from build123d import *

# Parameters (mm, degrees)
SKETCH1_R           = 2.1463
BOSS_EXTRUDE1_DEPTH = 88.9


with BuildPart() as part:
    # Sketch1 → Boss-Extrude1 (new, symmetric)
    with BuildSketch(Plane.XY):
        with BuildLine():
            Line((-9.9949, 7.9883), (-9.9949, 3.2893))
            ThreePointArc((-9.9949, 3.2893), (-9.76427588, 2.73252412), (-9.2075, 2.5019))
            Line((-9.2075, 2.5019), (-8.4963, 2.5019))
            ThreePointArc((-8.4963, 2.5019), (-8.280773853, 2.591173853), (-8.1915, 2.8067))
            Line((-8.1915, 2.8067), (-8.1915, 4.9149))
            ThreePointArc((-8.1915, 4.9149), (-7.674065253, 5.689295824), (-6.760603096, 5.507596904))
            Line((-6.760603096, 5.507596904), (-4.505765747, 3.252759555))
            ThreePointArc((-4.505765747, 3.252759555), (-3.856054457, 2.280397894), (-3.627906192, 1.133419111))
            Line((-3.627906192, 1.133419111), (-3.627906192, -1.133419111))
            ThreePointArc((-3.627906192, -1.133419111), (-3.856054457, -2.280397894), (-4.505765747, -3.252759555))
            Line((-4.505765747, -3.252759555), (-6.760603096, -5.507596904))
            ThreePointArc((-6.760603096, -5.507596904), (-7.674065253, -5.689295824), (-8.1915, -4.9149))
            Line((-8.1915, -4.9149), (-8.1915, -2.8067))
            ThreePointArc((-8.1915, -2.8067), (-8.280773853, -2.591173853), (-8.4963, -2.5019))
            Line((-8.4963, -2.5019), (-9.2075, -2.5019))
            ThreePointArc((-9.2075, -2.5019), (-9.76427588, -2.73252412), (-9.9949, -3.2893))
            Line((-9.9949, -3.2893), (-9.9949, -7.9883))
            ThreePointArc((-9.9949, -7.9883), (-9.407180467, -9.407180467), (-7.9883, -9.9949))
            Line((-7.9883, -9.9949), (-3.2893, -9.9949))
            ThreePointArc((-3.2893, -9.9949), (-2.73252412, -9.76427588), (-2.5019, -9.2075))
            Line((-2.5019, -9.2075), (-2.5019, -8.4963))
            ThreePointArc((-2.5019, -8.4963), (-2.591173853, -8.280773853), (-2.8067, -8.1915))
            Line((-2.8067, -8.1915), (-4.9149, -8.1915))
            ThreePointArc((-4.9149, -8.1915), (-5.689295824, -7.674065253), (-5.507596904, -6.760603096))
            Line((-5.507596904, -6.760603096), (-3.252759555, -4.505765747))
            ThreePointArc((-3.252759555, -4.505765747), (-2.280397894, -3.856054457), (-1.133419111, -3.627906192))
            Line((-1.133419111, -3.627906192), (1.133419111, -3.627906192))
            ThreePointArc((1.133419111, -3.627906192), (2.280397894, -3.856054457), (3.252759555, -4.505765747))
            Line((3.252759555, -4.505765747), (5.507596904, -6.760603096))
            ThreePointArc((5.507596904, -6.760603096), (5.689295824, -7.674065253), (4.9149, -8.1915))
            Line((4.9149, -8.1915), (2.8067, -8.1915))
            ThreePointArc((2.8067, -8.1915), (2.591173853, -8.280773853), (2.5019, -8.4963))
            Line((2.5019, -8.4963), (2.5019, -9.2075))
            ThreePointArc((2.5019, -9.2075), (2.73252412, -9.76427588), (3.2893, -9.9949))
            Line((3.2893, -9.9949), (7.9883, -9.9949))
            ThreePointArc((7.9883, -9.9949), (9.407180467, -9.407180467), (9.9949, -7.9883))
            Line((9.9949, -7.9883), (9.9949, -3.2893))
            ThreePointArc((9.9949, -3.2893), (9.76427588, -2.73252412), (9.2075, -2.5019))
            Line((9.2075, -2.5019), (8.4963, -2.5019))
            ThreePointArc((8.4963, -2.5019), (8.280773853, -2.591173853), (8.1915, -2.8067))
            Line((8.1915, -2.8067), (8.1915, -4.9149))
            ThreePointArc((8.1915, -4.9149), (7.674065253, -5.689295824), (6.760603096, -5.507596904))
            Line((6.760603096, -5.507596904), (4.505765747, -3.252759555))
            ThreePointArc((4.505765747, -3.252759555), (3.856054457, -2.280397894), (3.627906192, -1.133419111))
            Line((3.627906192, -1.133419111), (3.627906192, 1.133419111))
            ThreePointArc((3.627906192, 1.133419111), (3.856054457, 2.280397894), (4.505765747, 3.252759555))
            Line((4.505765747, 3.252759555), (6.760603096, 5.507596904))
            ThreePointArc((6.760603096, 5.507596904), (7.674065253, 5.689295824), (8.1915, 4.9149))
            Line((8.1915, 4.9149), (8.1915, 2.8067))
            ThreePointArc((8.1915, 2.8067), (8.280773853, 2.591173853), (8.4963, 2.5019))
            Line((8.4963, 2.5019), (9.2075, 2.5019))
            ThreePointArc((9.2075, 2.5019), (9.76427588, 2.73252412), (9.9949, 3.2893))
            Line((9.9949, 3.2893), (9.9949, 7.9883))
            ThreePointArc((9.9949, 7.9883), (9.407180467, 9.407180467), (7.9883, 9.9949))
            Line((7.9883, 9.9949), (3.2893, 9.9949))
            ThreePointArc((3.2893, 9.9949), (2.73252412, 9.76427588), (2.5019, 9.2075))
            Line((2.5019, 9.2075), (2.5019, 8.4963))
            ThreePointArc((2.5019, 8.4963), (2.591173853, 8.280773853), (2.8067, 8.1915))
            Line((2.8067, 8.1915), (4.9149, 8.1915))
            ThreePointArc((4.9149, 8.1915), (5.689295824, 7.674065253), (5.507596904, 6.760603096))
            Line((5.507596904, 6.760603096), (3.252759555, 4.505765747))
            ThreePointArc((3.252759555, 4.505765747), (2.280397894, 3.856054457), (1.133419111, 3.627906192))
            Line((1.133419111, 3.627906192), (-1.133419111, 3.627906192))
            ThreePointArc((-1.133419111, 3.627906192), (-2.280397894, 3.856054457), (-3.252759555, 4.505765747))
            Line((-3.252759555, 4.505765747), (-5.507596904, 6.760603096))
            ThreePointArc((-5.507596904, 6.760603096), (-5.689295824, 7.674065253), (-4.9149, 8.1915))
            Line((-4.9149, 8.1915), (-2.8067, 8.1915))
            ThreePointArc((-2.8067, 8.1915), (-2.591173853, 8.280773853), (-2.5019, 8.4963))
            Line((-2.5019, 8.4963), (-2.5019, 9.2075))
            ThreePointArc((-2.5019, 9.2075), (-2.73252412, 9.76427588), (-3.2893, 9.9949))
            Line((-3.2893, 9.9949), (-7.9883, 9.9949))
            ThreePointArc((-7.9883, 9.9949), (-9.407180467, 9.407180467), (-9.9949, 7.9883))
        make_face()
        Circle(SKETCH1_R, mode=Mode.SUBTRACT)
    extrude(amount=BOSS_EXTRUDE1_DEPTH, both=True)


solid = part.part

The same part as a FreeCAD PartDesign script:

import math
import FreeCAD as App
import Part
import Sketcher
from FreeCAD import Vector
Q = App.Units.Quantity

doc = App.newDocument("Part")
body = doc.addObject("PartDesign::Body", "Body")

sketch1 = body.newObject("Sketcher::SketchObject", "Sketch")
sketch1.AttachmentSupport = (doc.getObject("XY_Plane"), [""])
sketch1.MapMode = "FlatFace"
sketch1.addGeometry(Part.LineSegment(Vector(-9.99, 7.99, 0), Vector(-9.99, 3.29, 0)), False)
sketch1.addGeometry(Part.ArcOfCircle(Part.Circle(Vector(-9.21, 3.29, 0), Vector(0, 0, 1), 0.79), math.radians(180), math.radians(270)), False)
sketch1.addGeometry(Part.LineSegment(Vector(-9.21, 2.5, 0), Vector(-8.5, 2.5, 0)), False)
sketch1.addGeometry(Part.ArcOfCircle(Part.Circle(Vector(-8.5, 2.81, 0), Vector(0, 0, 1), 0.3), math.radians(-90), math.radians(0)), False)
sketch1.addGeometry(Part.LineSegment(Vector(-8.19, 2.81, 0), Vector(-8.19, 4.91, 0)), False)
sketch1.addGeometry(Part.ArcOfCircle(Part.Circle(Vector(-7.35, 4.91, 0), Vector(0, 0, 1), 0.84), math.radians(45), math.radians(180)), False)
sketch1.addGeometry(Part.LineSegment(Vector(-6.76, 5.51, 0), Vector(-4.51, 3.25, 0)), False)
sketch1.addGeometry(Part.ArcOfCircle(Part.Circle(Vector(-6.63, 1.13, 0), Vector(0, 0, 1), 3), math.radians(0), math.radians(45)), False)
sketch1.addGeometry(Part.LineSegment(Vector(-3.63, 1.13, 0), Vector(-3.63, -1.13, 0)), False)
sketch1.addGeometry(Part.ArcOfCircle(Part.Circle(Vector(-6.63, -1.13, 0), Vector(0, 0, 1), 3), math.radians(-45), math.radians(0)), False)
sketch1.addGeometry(Part.LineSegment(Vector(-4.51, -3.25, 0), Vector(-6.76, -5.51, 0)), False)
sketch1.addGeometry(Part.ArcOfCircle(Part.Circle(Vector(-7.35, -4.91, 0), Vector(0, 0, 1), 0.84), math.radians(180), math.radians(315)), False)
sketch1.addGeometry(Part.LineSegment(Vector(-8.19, -4.91, 0), Vector(-8.19, -2.81, 0)), False)
sketch1.addGeometry(Part.ArcOfCircle(Part.Circle(Vector(-8.5, -2.81, 0), Vector(0, 0, 1), 0.3), math.radians(0), math.radians(90)), False)
sketch1.addGeometry(Part.LineSegment(Vector(-8.5, -2.5, 0), Vector(-9.21, -2.5, 0)), False)
sketch1.addGeometry(Part.ArcOfCircle(Part.Circle(Vector(-9.21, -3.29, 0), Vector(0, 0, 1), 0.79), math.radians(90), math.radians(180)), False)
sketch1.addGeometry(Part.LineSegment(Vector(-9.99, -3.29, 0), Vector(-9.99, -7.99, 0)), False)
sketch1.addGeometry(Part.ArcOfCircle(Part.Circle(Vector(-7.99, -7.99, 0), Vector(0, 0, 1), 2.01), math.radians(180), math.radians(270)), False)
sketch1.addGeometry(Part.LineSegment(Vector(-7.99, -9.99, 0), Vector(-3.29, -9.99, 0)), False)
sketch1.addGeometry(Part.ArcOfCircle(Part.Circle(Vector(-3.29, -9.21, 0), Vector(0, 0, 1), 0.79), math.radians(-90), math.radians(0)), False)
sketch1.addGeometry(Part.LineSegment(Vector(-2.5, -9.21, 0), Vector(-2.5, -8.5, 0)), False)
sketch1.addGeometry(Part.ArcOfCircle(Part.Circle(Vector(-2.81, -8.5, 0), Vector(0, 0, 1), 0.3), math.radians(0), math.radians(90)), False)
sketch1.addGeometry(Part.LineSegment(Vector(-2.81, -8.19, 0), Vector(-4.91, -8.19, 0)), False)
sketch1.addGeometry(Part.ArcOfCircle(Part.Circle(Vector(-4.91, -7.35, 0), Vector(0, 0, 1), 0.84), math.radians(135), math.radians(270)), False)
sketch1.addGeometry(Part.LineSegment(Vector(-5.51, -6.76, 0), Vector(-3.25, -4.51, 0)), False)
sketch1.addGeometry(Part.ArcOfCircle(Part.Circle(Vector(-1.13, -6.63, 0), Vector(0, 0, 1), 3), math.radians(90), math.radians(135)), False)
sketch1.addGeometry(Part.LineSegment(Vector(-1.13, -3.63, 0), Vector(1.13, -3.63, 0)), False)
sketch1.addGeometry(Part.ArcOfCircle(Part.Circle(Vector(1.13, -6.63, 0), Vector(0, 0, 1), 3), math.radians(45), math.radians(90)), False)
sketch1.addGeometry(Part.LineSegment(Vector(3.25, -4.51, 0), Vector(5.51, -6.76, 0)), False)
sketch1.addGeometry(Part.ArcOfCircle(Part.Circle(Vector(4.91, -7.35, 0), Vector(0, 0, 1), 0.84), math.radians(-90), math.radians(45)), False)
sketch1.addGeometry(Part.LineSegment(Vector(4.91, -8.19, 0), Vector(2.81, -8.19, 0)), False)
sketch1.addGeometry(Part.ArcOfCircle(Part.Circle(Vector(2.81, -8.5, 0), Vector(0, 0, 1), 0.3), math.radians(90), math.radians(180)), False)
sketch1.addGeometry(Part.LineSegment(Vector(2.5, -8.5, 0), Vector(2.5, -9.21, 0)), False)
sketch1.addGeometry(Part.ArcOfCircle(Part.Circle(Vector(3.29, -9.21, 0), Vector(0, 0, 1), 0.79), math.radians(180), math.radians(270)), False)
sketch1.addGeometry(Part.LineSegment(Vector(3.29, -9.99, 0), Vector(7.99, -9.99, 0)), False)
sketch1.addGeometry(Part.ArcOfCircle(Part.Circle(Vector(7.99, -7.99, 0), Vector(0, 0, 1), 2.01), math.radians(-90), math.radians(0)), False)
sketch1.addGeometry(Part.LineSegment(Vector(9.99, -7.99, 0), Vector(9.99, -3.29, 0)), False)
sketch1.addGeometry(Part.ArcOfCircle(Part.Circle(Vector(9.21, -3.29, 0), Vector(0, 0, 1), 0.79), math.radians(0), math.radians(90)), False)
sketch1.addGeometry(Part.LineSegment(Vector(9.21, -2.5, 0), Vector(8.5, -2.5, 0)), False)
sketch1.addGeometry(Part.ArcOfCircle(Part.Circle(Vector(8.5, -2.81, 0), Vector(0, 0, 1), 0.3), math.radians(90), math.radians(180)), False)
sketch1.addGeometry(Part.LineSegment(Vector(8.19, -2.81, 0), Vector(8.19, -4.91, 0)), False)
sketch1.addGeometry(Part.ArcOfCircle(Part.Circle(Vector(7.35, -4.91, 0), Vector(0, 0, 1), 0.84), math.radians(-135), math.radians(0)), False)
sketch1.addGeometry(Part.LineSegment(Vector(6.76, -5.51, 0), Vector(4.51, -3.25, 0)), False)
sketch1.addGeometry(Part.ArcOfCircle(Part.Circle(Vector(6.63, -1.13, 0), Vector(0, 0, 1), 3), math.radians(180), math.radians(225)), False)
sketch1.addGeometry(Part.LineSegment(Vector(3.63, -1.13, 0), Vector(3.63, 1.13, 0)), False)
sketch1.addGeometry(Part.ArcOfCircle(Part.Circle(Vector(6.63, 1.13, 0), Vector(0, 0, 1), 3), math.radians(135), math.radians(180)), False)
sketch1.addGeometry(Part.LineSegment(Vector(4.51, 3.25, 0), Vector(6.76, 5.51, 0)), False)
sketch1.addGeometry(Part.ArcOfCircle(Part.Circle(Vector(7.35, 4.91, 0), Vector(0, 0, 1), 0.84), math.radians(0), math.radians(135)), False)
sketch1.addGeometry(Part.LineSegment(Vector(8.19, 4.91, 0), Vector(8.19, 2.81, 0)), False)
sketch1.addGeometry(Part.ArcOfCircle(Part.Circle(Vector(8.5, 2.81, 0), Vector(0, 0, 1), 0.3), math.radians(180), math.radians(270)), False)
sketch1.addGeometry(Part.LineSegment(Vector(8.5, 2.5, 0), Vector(9.21, 2.5, 0)), False)
sketch1.addGeometry(Part.ArcOfCircle(Part.Circle(Vector(9.21, 3.29, 0), Vector(0, 0, 1), 0.79), math.radians(-90), math.radians(0)), False)
sketch1.addGeometry(Part.LineSegment(Vector(9.99, 3.29, 0), Vector(9.99, 7.99, 0)), False)
sketch1.addGeometry(Part.ArcOfCircle(Part.Circle(Vector(7.99, 7.99, 0), Vector(0, 0, 1), 2.01), math.radians(0), math.radians(90)), False)
sketch1.addGeometry(Part.LineSegment(Vector(7.99, 9.99, 0), Vector(3.29, 9.99, 0)), False)
sketch1.addGeometry(Part.ArcOfCircle(Part.Circle(Vector(3.29, 9.21, 0), Vector(0, 0, 1), 0.79), math.radians(90), math.radians(180)), False)
sketch1.addGeometry(Part.LineSegment(Vector(2.5, 9.21, 0), Vector(2.5, 8.5, 0)), False)
sketch1.addGeometry(Part.ArcOfCircle(Part.Circle(Vector(2.81, 8.5, 0), Vector(0, 0, 1), 0.3), math.radians(180), math.radians(270)), False)
sketch1.addGeometry(Part.LineSegment(Vector(2.81, 8.19, 0), Vector(4.91, 8.19, 0)), False)
sketch1.addGeometry(Part.ArcOfCircle(Part.Circle(Vector(4.91, 7.35, 0), Vector(0, 0, 1), 0.84), math.radians(-45), math.radians(90)), False)
sketch1.addGeometry(Part.LineSegment(Vector(5.51, 6.76, 0), Vector(3.25, 4.51, 0)), False)
sketch1.addGeometry(Part.ArcOfCircle(Part.Circle(Vector(1.13, 6.63, 0), Vector(0, 0, 1), 3), math.radians(-90), math.radians(-45)), False)
sketch1.addGeometry(Part.LineSegment(Vector(1.13, 3.63, 0), Vector(-1.13, 3.63, 0)), False)
sketch1.addGeometry(Part.ArcOfCircle(Part.Circle(Vector(-1.13, 6.63, 0), Vector(0, 0, 1), 3), math.radians(-135), math.radians(-90)), False)
sketch1.addGeometry(Part.LineSegment(Vector(-3.25, 4.51, 0), Vector(-5.51, 6.76, 0)), False)
sketch1.addGeometry(Part.ArcOfCircle(Part.Circle(Vector(-4.91, 7.35, 0), Vector(0, 0, 1), 0.84), math.radians(90), math.radians(225)), False)
sketch1.addGeometry(Part.LineSegment(Vector(-4.91, 8.19, 0), Vector(-2.81, 8.19, 0)), False)
sketch1.addGeometry(Part.ArcOfCircle(Part.Circle(Vector(-2.81, 8.5, 0), Vector(0, 0, 1), 0.3), math.radians(-90), math.radians(0)), False)
sketch1.addGeometry(Part.LineSegment(Vector(-2.5, 8.5, 0), Vector(-2.5, 9.21, 0)), False)
sketch1.addGeometry(Part.ArcOfCircle(Part.Circle(Vector(-3.29, 9.21, 0), Vector(0, 0, 1), 0.79), math.radians(0), math.radians(90)), False)
sketch1.addGeometry(Part.LineSegment(Vector(-3.29, 9.99, 0), Vector(-7.99, 9.99, 0)), False)
sketch1.addGeometry(Part.ArcOfCircle(Part.Circle(Vector(-7.99, 7.99, 0), Vector(0, 0, 1), 2.01), math.radians(90), math.radians(180)), False)
sketch1.addGeometry(Part.Circle(Vector(0, 0, 0), Vector(0, 0, 1), 2.15), False)
sketch1.addConstraint(Sketcher.Constraint("Tangent", 0, 2, 1, 1))
sketch1.addConstraint(Sketcher.Constraint("Tangent", 1, 2, 2, 1))
sketch1.addConstraint(Sketcher.Constraint("Tangent", 2, 2, 3, 1))
sketch1.addConstraint(Sketcher.Constraint("Tangent", 3, 2, 4, 1))
sketch1.addConstraint(Sketcher.Constraint("Tangent", 4, 2, 5, 2))
sketch1.addConstraint(Sketcher.Constraint("Tangent", 5, 1, 6, 1))
sketch1.addConstraint(Sketcher.Constraint("Tangent", 6, 2, 7, 2))
sketch1.addConstraint(Sketcher.Constraint("Tangent", 7, 1, 8, 1))
sketch1.addConstraint(Sketcher.Constraint("Tangent", 8, 2, 9, 2))
sketch1.addConstraint(Sketcher.Constraint("Tangent", 9, 1, 10, 1))
sketch1.addConstraint(Sketcher.Constraint("Tangent", 10, 2, 11, 2))
sketch1.addConstraint(Sketcher.Constraint("Tangent", 11, 1, 12, 1))
sketch1.addConstraint(Sketcher.Constraint("Tangent", 12, 2, 13, 1))
sketch1.addConstraint(Sketcher.Constraint("Tangent", 13, 2, 14, 1))
sketch1.addConstraint(Sketcher.Constraint("Tangent", 14, 2, 15, 1))
sketch1.addConstraint(Sketcher.Constraint("Tangent", 15, 2, 16, 1))
sketch1.addConstraint(Sketcher.Constraint("Tangent", 16, 2, 17, 1))
sketch1.addConstraint(Sketcher.Constraint("Tangent", 17, 2, 18, 1))
sketch1.addConstraint(Sketcher.Constraint("Tangent", 18, 2, 19, 1))
sketch1.addConstraint(Sketcher.Constraint("Tangent", 19, 2, 20, 1))
sketch1.addConstraint(Sketcher.Constraint("Tangent", 20, 2, 21, 1))
sketch1.addConstraint(Sketcher.Constraint("Tangent", 21, 2, 22, 1))
sketch1.addConstraint(Sketcher.Constraint("Tangent", 22, 2, 23, 2))
sketch1.addConstraint(Sketcher.Constraint("Tangent", 23, 1, 24, 1))
sketch1.addConstraint(Sketcher.Constraint("Tangent", 24, 2, 25, 2))
sketch1.addConstraint(Sketcher.Constraint("Tangent", 25, 1, 26, 1))
sketch1.addConstraint(Sketcher.Constraint("Tangent", 26, 2, 27, 2))
sketch1.addConstraint(Sketcher.Constraint("Tangent", 27, 1, 28, 1))
sketch1.addConstraint(Sketcher.Constraint("Tangent", 28, 2, 29, 2))
sketch1.addConstraint(Sketcher.Constraint("Tangent", 29, 1, 30, 1))
sketch1.addConstraint(Sketcher.Constraint("Tangent", 30, 2, 31, 1))
sketch1.addConstraint(Sketcher.Constraint("Tangent", 31, 2, 32, 1))
sketch1.addConstraint(Sketcher.Constraint("Tangent", 32, 2, 33, 1))
sketch1.addConstraint(Sketcher.Constraint("Tangent", 33, 2, 34, 1))
sketch1.addConstraint(Sketcher.Constraint("Tangent", 34, 2, 35, 1))
sketch1.addConstraint(Sketcher.Constraint("Tangent", 35, 2, 36, 1))
sketch1.addConstraint(Sketcher.Constraint("Tangent", 36, 2, 37, 1))
sketch1.addConstraint(Sketcher.Constraint("Tangent", 37, 2, 38, 1))
sketch1.addConstraint(Sketcher.Constraint("Tangent", 38, 2, 39, 1))
sketch1.addConstraint(Sketcher.Constraint("Tangent", 39, 2, 40, 1))
sketch1.addConstraint(Sketcher.Constraint("Tangent", 40, 2, 41, 2))
sketch1.addConstraint(Sketcher.Constraint("Tangent", 41, 1, 42, 1))
sketch1.addConstraint(Sketcher.Constraint("Tangent", 42, 2, 43, 2))
sketch1.addConstraint(Sketcher.Constraint("Tangent", 43, 1, 44, 1))
sketch1.addConstraint(Sketcher.Constraint("Tangent", 44, 2, 45, 2))
sketch1.addConstraint(Sketcher.Constraint("Tangent", 45, 1, 46, 1))
sketch1.addConstraint(Sketcher.Constraint("Tangent", 46, 2, 47, 2))
sketch1.addConstraint(Sketcher.Constraint("Tangent", 47, 1, 48, 1))
sketch1.addConstraint(Sketcher.Constraint("Tangent", 48, 2, 49, 1))
sketch1.addConstraint(Sketcher.Constraint("Tangent", 49, 2, 50, 1))
sketch1.addConstraint(Sketcher.Constraint("Tangent", 50, 2, 51, 1))
sketch1.addConstraint(Sketcher.Constraint("Tangent", 51, 2, 52, 1))
sketch1.addConstraint(Sketcher.Constraint("Tangent", 52, 2, 53, 1))
sketch1.addConstraint(Sketcher.Constraint("Tangent", 53, 2, 54, 1))
sketch1.addConstraint(Sketcher.Constraint("Tangent", 54, 2, 55, 1))
sketch1.addConstraint(Sketcher.Constraint("Tangent", 55, 2, 56, 1))
sketch1.addConstraint(Sketcher.Constraint("Tangent", 56, 2, 57, 1))
sketch1.addConstraint(Sketcher.Constraint("Tangent", 57, 2, 58, 1))
sketch1.addConstraint(Sketcher.Constraint("Tangent", 58, 2, 59, 2))
sketch1.addConstraint(Sketcher.Constraint("Tangent", 59, 1, 60, 1))
sketch1.addConstraint(Sketcher.Constraint("Tangent", 60, 2, 61, 2))
sketch1.addConstraint(Sketcher.Constraint("Tangent", 61, 1, 62, 1))
sketch1.addConstraint(Sketcher.Constraint("Tangent", 62, 2, 63, 2))
sketch1.addConstraint(Sketcher.Constraint("Tangent", 63, 1, 64, 1))
sketch1.addConstraint(Sketcher.Constraint("Tangent", 64, 2, 65, 2))
sketch1.addConstraint(Sketcher.Constraint("Tangent", 65, 1, 66, 1))
sketch1.addConstraint(Sketcher.Constraint("Tangent", 66, 2, 67, 1))
sketch1.addConstraint(Sketcher.Constraint("Tangent", 67, 2, 68, 1))
sketch1.addConstraint(Sketcher.Constraint("Tangent", 68, 2, 69, 1))
sketch1.addConstraint(Sketcher.Constraint("Tangent", 69, 2, 70, 1))
sketch1.addConstraint(Sketcher.Constraint("Tangent", 70, 2, 71, 1))
sketch1.addConstraint(Sketcher.Constraint("Tangent", 71, 2, 0, 1))
sketch1.addConstraint(Sketcher.Constraint("Vertical", 0))
sketch1.addConstraint(Sketcher.Constraint("Horizontal", 2))
sketch1.addConstraint(Sketcher.Constraint("Vertical", 4))
sketch1.addConstraint(Sketcher.Constraint("Vertical", 8))
sketch1.addConstraint(Sketcher.Constraint("Vertical", 12))
sketch1.addConstraint(Sketcher.Constraint("Horizontal", 14))
sketch1.addConstraint(Sketcher.Constraint("Vertical", 16))
sketch1.addConstraint(Sketcher.Constraint("Horizontal", 18))
sketch1.addConstraint(Sketcher.Constraint("Vertical", 20))
sketch1.addConstraint(Sketcher.Constraint("Horizontal", 22))
sketch1.addConstraint(Sketcher.Constraint("Horizontal", 26))
sketch1.addConstraint(Sketcher.Constraint("Horizontal", 30))
sketch1.addConstraint(Sketcher.Constraint("Vertical", 32))
sketch1.addConstraint(Sketcher.Constraint("Horizontal", 34))
sketch1.addConstraint(Sketcher.Constraint("Vertical", 36))
sketch1.addConstraint(Sketcher.Constraint("Horizontal", 38))
sketch1.addConstraint(Sketcher.Constraint("Vertical", 40))
sketch1.addConstraint(Sketcher.Constraint("Vertical", 44))
sketch1.addConstraint(Sketcher.Constraint("Vertical", 48))
sketch1.addConstraint(Sketcher.Constraint("Horizontal", 50))
sketch1.addConstraint(Sketcher.Constraint("Vertical", 52))
sketch1.addConstraint(Sketcher.Constraint("Horizontal", 54))
sketch1.addConstraint(Sketcher.Constraint("Vertical", 56))
sketch1.addConstraint(Sketcher.Constraint("Horizontal", 58))
sketch1.addConstraint(Sketcher.Constraint("Horizontal", 62))
sketch1.addConstraint(Sketcher.Constraint("Horizontal", 66))
sketch1.addConstraint(Sketcher.Constraint("Vertical", 68))
sketch1.addConstraint(Sketcher.Constraint("Horizontal", 70))
sketch1.addConstraint(Sketcher.Constraint("Coincident", 72, 3, -1, 1))
sketch1.addConstraint(Sketcher.Constraint("Equal", 7, 9))
sketch1.addConstraint(Sketcher.Constraint("Equal", 5, 11))
sketch1.addConstraint(Sketcher.Constraint("Equal", 3, 13))
sketch1.addConstraint(Sketcher.Constraint("Equal", 1, 15))
sketch1.addConstraint(Sketcher.Constraint("Equal", 15, 19))
sketch1.addConstraint(Sketcher.Constraint("Equal", 13, 21))
sketch1.addConstraint(Sketcher.Constraint("Equal", 11, 23))
sketch1.addConstraint(Sketcher.Constraint("Equal", 9, 25))
sketch1.addConstraint(Sketcher.Constraint("Equal", 25, 27))
sketch1.addConstraint(Sketcher.Constraint("Equal", 23, 29))
sketch1.addConstraint(Sketcher.Constraint("Equal", 21, 31))
sketch1.addConstraint(Sketcher.Constraint("Equal", 19, 33))
sketch1.addConstraint(Sketcher.Constraint("Equal", 17, 35))
sketch1.addConstraint(Sketcher.Constraint("Equal", 33, 37))
sketch1.addConstraint(Sketcher.Constraint("Equal", 31, 39))
sketch1.addConstraint(Sketcher.Constraint("Equal", 29, 41))
sketch1.addConstraint(Sketcher.Constraint("Equal", 27, 43))
sketch1.addConstraint(Sketcher.Constraint("Equal", 43, 45))
sketch1.addConstraint(Sketcher.Constraint("Equal", 41, 47))
sketch1.addConstraint(Sketcher.Constraint("Equal", 39, 49))
sketch1.addConstraint(Sketcher.Constraint("Equal", 37, 51))
sketch1.addConstraint(Sketcher.Constraint("Equal", 35, 53))
sketch1.addConstraint(Sketcher.Constraint("Equal", 51, 55))
sketch1.addConstraint(Sketcher.Constraint("Equal", 49, 57))
sketch1.addConstraint(Sketcher.Constraint("Equal", 47, 59))
sketch1.addConstraint(Sketcher.Constraint("Equal", 45, 61))
sketch1.addConstraint(Sketcher.Constraint("Equal", 61, 63))
sketch1.addConstraint(Sketcher.Constraint("Equal", 59, 65))
sketch1.addConstraint(Sketcher.Constraint("Equal", 57, 67))
sketch1.addConstraint(Sketcher.Constraint("Equal", 55, 69))
sketch1.addConstraint(Sketcher.Constraint("Equal", 53, 71))
sketch1.addConstraint(Sketcher.Constraint("Symmetric", 1, 3, 37, 3, -1, 1))
sketch1.addConstraint(Sketcher.Constraint("Symmetric", 5, 3, 41, 3, -1, 1))
sketch1.addConstraint(Sketcher.Constraint("Symmetric", 7, 3, 43, 3, -1, 1))
sketch1.addConstraint(Sketcher.Constraint("Symmetric", 11, 3, 47, 3, -1, 1))
sketch1.addConstraint(Sketcher.Constraint("Symmetric", 15, 3, 51, 3, -1, 1))
sketch1.addConstraint(Sketcher.Constraint("Symmetric", 19, 3, 55, 3, -1, 1))
sketch1.addConstraint(Sketcher.Constraint("Symmetric", 23, 3, 59, 3, -1, 1))
sketch1.addConstraint(Sketcher.Constraint("Symmetric", 25, 3, 61, 3, -1, 1))
sketch1.addConstraint(Sketcher.Constraint("Symmetric", 29, 3, 65, 3, -1, 1))
sketch1.addConstraint(Sketcher.Constraint("Symmetric", 33, 3, 69, 3, -1, 1))
sketch1.addConstraint(Sketcher.Constraint("Symmetric", 23, 3, 29, 3, -2))
sketch1.addConstraint(Sketcher.Constraint("Symmetric", 19, 3, 33, 3, -2))
sketch1.addConstraint(Sketcher.Constraint("Symmetric", 15, 3, 37, 3, -2))
sketch1.addConstraint(Sketcher.Constraint("Symmetric", 11, 3, 41, 3, -2))
sketch1.addConstraint(Sketcher.Constraint("Perpendicular", 6, 10))
sketch1.addConstraint(Sketcher.Constraint("Parallel", 10, 24))
sketch1.addConstraint(Sketcher.Constraint("Perpendicular", 24, 28))
sketch1.addConstraint(Sketcher.Constraint("Perpendicular", 42, 46))
sketch1.addConstraint(Sketcher.Constraint("Perpendicular", 60, 64))
sketch1.addConstraint(Sketcher.Constraint("Horizontal", 9, 3, 43, 3))
sketch1.addConstraint(Sketcher.Constraint("Equal", 70, 0))
sketch1.addConstraint(Sketcher.Constraint("Equal", 66, 4))
sketch1.addConstraint(Sketcher.Constraint("Equal", 62, 8))
sketch1.addConstraint(Sketcher.Constraint("Equal", 50, 20))
sketch1.addConstraint(Sketcher.Constraint("Equal", 10, 24))
sketch1.addConstraint(Sketcher.Constraint("Diameter", 72, Q("0.169 in")))
sketch1.addConstraint(Sketcher.Constraint("Radius", 1, Q("0.031 in")))
sketch1.addConstraint(Sketcher.Constraint("Radius", 3, Q("0.012 in")))
sketch1.addConstraint(Sketcher.Constraint("Radius", 5, Q("0.033 in")))
sketch1.addConstraint(Sketcher.Constraint("Radius", 7, Q("0.118 in")))
sketch1.addConstraint(Sketcher.Constraint("Radius", 17, Q("0.079 in")))
sketch1.addConstraint(Sketcher.Constraint("DistanceX", 2, 1, 2, 2, Q("0.028 in")))
sketch1.addConstraint(Sketcher.Constraint("DistanceX", 18, 1, 18, 2, Q("0.185 in")))
sketch1.addConstraint(Sketcher.Constraint("DistanceX", 22, 2, 22, 1, Q("0.083 in")))
sketch1.addConstraint(Sketcher.Constraint("DistanceX", 1, 3, -1, 1, Q("0.3625 in")))
sketch1.addConstraint(Sketcher.Constraint("DistanceX", 26, 1, 26, 2, Q("2.266838 mm")))
pad1 = body.newObject("PartDesign::Pad", "Pad")
pad1.Profile = sketch1
pad1.Length = Q("7 in")
pad1.Midplane = True

doc.recompute()
